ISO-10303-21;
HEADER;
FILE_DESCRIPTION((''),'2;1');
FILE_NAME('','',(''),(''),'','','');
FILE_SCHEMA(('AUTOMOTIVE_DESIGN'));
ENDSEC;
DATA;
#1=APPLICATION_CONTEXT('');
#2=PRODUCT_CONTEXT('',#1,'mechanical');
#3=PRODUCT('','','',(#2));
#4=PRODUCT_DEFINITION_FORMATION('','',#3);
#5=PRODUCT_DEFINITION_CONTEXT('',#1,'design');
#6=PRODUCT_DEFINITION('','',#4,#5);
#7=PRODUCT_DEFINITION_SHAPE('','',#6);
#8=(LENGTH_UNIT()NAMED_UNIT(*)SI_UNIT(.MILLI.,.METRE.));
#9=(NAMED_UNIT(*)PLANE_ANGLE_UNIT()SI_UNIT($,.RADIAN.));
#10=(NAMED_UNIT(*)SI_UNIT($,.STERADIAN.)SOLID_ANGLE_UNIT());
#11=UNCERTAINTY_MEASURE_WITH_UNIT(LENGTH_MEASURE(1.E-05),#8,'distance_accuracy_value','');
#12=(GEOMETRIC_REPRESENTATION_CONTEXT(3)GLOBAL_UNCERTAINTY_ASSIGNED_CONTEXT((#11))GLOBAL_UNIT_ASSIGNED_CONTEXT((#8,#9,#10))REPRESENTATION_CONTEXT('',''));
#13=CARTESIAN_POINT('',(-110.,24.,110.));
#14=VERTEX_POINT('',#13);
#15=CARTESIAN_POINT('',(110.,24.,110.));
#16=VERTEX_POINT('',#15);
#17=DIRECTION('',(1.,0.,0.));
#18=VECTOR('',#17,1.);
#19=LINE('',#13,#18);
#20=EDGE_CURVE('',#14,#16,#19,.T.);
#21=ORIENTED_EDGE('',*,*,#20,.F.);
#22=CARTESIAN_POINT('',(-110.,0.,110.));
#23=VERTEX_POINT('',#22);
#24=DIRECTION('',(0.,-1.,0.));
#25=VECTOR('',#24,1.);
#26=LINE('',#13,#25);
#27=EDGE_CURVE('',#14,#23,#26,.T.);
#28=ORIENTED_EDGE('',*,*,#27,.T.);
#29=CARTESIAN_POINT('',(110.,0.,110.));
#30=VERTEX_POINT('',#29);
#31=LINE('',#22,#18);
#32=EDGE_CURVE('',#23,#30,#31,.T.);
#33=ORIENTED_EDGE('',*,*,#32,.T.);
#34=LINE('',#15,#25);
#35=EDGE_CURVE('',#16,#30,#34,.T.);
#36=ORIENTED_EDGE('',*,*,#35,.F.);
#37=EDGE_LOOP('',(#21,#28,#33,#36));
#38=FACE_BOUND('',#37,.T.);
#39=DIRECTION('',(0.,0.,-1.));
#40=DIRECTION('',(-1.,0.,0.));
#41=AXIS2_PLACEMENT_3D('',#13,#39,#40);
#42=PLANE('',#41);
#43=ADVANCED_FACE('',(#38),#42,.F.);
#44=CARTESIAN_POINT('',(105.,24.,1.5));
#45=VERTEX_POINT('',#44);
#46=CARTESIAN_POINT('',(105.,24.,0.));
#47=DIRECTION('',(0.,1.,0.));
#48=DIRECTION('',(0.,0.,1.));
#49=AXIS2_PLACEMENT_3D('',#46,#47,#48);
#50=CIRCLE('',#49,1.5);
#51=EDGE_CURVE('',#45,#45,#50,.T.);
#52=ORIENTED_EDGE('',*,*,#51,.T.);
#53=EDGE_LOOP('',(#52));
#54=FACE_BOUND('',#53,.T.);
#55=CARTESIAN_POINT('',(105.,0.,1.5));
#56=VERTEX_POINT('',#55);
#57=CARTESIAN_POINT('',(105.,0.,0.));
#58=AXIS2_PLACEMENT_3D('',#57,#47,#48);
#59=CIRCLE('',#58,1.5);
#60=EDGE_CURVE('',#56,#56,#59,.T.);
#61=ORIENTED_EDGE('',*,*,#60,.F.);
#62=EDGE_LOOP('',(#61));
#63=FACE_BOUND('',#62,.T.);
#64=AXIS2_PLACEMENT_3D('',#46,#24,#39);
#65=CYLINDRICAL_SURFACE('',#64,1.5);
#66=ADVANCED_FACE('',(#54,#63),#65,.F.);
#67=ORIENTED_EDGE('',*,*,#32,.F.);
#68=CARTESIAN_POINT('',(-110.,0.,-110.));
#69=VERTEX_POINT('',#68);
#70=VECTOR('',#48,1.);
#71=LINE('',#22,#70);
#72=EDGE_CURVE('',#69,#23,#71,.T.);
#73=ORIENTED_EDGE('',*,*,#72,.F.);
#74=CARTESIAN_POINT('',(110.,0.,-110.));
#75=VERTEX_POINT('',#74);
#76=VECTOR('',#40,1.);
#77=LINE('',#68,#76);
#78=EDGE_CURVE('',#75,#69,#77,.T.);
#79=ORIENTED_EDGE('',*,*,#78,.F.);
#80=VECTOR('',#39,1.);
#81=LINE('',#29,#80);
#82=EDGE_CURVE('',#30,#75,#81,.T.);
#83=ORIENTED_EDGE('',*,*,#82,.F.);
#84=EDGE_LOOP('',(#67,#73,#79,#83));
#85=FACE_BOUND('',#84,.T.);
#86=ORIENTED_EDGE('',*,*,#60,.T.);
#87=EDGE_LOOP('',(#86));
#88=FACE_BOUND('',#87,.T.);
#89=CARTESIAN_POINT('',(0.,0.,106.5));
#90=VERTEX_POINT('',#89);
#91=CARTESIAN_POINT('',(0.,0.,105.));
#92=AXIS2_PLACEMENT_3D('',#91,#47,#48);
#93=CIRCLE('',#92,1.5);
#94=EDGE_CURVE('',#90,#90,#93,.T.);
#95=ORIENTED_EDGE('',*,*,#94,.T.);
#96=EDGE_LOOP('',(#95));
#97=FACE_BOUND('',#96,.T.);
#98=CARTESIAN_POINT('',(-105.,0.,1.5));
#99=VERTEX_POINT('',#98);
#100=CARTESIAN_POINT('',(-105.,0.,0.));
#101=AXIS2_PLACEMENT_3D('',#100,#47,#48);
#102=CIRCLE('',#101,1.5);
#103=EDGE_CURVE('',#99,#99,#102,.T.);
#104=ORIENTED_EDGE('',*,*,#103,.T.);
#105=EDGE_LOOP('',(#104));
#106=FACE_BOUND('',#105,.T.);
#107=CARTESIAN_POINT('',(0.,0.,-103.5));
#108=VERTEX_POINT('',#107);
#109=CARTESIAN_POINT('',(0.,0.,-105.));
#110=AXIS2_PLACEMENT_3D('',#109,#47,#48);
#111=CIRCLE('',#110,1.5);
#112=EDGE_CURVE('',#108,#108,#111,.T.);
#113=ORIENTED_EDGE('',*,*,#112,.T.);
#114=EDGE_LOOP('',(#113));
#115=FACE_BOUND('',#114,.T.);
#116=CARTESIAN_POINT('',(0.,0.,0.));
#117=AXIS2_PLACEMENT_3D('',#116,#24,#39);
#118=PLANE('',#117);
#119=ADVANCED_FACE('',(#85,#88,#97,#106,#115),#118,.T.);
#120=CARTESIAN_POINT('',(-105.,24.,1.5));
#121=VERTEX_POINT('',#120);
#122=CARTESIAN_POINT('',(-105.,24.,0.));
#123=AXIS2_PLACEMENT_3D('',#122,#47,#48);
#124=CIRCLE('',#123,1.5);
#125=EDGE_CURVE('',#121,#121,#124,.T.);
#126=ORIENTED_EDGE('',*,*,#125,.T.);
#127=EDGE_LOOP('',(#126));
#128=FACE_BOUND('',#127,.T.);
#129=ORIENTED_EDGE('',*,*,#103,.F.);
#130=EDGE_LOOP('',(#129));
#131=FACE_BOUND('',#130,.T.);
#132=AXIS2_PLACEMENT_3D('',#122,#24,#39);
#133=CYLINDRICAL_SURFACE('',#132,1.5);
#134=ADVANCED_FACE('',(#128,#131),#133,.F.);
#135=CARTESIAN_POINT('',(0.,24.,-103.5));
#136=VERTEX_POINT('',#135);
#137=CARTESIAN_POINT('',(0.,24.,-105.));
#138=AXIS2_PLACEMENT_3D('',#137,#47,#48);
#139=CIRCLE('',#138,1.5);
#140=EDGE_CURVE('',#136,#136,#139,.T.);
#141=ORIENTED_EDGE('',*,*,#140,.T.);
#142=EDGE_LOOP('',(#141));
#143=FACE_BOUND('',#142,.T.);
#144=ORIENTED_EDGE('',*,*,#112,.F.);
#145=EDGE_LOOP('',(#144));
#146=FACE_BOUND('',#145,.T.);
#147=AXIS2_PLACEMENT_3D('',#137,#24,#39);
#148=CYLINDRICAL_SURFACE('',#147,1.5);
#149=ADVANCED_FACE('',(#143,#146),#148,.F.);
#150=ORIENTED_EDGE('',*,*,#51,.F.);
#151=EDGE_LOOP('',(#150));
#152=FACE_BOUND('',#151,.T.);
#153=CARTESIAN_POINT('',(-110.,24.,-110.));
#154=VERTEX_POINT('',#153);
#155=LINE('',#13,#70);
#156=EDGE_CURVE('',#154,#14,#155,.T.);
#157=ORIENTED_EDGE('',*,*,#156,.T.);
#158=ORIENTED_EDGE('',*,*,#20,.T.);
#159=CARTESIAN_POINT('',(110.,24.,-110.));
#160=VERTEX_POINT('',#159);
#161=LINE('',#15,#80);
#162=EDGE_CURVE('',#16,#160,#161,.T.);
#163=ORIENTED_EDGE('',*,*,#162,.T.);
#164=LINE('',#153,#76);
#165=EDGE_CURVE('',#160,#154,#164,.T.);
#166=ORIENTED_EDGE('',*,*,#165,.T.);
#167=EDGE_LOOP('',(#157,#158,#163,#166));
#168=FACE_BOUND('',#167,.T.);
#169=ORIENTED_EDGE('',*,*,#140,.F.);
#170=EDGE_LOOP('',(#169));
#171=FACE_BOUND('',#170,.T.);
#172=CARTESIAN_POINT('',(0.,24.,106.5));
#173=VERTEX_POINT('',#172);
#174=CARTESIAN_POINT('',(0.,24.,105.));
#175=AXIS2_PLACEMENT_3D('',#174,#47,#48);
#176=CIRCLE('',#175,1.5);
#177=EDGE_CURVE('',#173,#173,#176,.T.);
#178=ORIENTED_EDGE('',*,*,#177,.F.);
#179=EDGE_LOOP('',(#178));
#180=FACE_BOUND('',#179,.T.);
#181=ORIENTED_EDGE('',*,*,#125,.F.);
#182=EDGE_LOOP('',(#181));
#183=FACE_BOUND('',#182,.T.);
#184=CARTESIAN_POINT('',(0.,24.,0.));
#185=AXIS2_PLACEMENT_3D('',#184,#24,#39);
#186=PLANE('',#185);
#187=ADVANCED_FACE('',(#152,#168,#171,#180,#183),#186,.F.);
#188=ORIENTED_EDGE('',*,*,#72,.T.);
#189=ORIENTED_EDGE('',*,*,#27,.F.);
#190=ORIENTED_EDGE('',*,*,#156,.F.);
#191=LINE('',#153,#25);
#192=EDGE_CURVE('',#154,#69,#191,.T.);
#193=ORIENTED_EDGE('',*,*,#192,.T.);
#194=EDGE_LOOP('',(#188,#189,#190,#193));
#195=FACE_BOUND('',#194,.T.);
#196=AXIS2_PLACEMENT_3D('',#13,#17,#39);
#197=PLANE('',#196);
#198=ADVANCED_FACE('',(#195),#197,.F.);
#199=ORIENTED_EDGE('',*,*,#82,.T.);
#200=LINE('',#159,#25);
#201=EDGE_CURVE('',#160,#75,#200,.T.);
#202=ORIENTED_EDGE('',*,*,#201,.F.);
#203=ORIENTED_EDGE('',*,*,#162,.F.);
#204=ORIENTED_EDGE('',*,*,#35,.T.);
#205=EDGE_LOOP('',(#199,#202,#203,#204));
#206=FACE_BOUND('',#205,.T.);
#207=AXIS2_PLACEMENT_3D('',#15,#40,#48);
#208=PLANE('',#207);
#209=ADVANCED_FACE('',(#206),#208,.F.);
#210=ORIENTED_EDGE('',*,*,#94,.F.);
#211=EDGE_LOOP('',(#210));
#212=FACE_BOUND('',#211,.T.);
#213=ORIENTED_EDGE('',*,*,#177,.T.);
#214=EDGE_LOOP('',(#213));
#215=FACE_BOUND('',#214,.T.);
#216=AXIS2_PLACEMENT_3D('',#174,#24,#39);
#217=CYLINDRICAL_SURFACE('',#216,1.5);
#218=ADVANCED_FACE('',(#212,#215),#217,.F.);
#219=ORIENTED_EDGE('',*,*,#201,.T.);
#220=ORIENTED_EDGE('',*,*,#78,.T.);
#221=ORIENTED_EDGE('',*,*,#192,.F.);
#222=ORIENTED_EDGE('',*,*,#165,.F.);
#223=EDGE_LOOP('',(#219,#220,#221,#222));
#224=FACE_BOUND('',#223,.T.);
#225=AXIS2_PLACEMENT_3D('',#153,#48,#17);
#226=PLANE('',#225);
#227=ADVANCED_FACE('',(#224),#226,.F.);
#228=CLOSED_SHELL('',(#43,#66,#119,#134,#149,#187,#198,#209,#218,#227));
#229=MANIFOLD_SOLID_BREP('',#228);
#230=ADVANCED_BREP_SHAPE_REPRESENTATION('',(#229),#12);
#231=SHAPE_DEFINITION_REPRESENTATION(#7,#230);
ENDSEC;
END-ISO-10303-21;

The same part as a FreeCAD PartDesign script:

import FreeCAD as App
import Part
import Sketcher

V = App.Vector
Q = App.Units.Quantity

doc = App.newDocument("Part")
body = doc.addObject("PartDesign::Body", "Body")

sketch1 = body.newObject("Sketcher::SketchObject", "Sketch")
sketch1.AttachmentSupport = (doc.getObject("XZ_Plane"), [""])
sketch1.MapMode = "FlatFace"
sketch1.addGeometry([
    Part.LineSegment(V(-110, -110, 0), V(-110, 110, 0)),
    Part.LineSegment(V(-110, 110, 0), V(110, 110, 0)),
    Part.LineSegment(V(110, 110, 0), V(110, -110, 0)),
    Part.LineSegment(V(110, -110, 0), V(-110, -110, 0)),
    Part.Circle(V(0, 105, 0), V(0, 0, 1), 1.5),
    Part.Circle(V(-105, 0, 0), V(0, 0, 1), 1.5),
    Part.Circle(V(105, 0, 0), V(0, 0, 1), 1.5),
    Part.Circle(V(0, -105, 0), V(0, 0, 1), 1.5),
], False)
sketch1.addConstraint([
    Sketcher.Constraint("Coincident", 0, 2, 1, 1),
    Sketcher.Constraint("Coincident", 1, 2, 2, 1),
    Sketcher.Constraint("Coincident", 2, 2, 3, 1),
    Sketcher.Constraint("Coincident", 3, 2, 0, 1),
    Sketcher.Constraint("Vertical", 0),
    Sketcher.Constraint("Horizontal", 1),
    Sketcher.Constraint("Vertical", 2),
    Sketcher.Constraint("Horizontal", 3),
    Sketcher.Constraint("Equal", 4, 5),
    Sketcher.Constraint("Equal", 5, 6),
    Sketcher.Constraint("Equal", 6, 7),
    Sketcher.Constraint("Symmetric", 5, 3, 6, 3, -1, 1),
    Sketcher.Constraint("Symmetric", 4, 3, 7, 3, -1, 1),
    Sketcher.Constraint("Symmetric", 0, 2, 2, 2, -1, 1),
    Sketcher.Constraint("PointOnObject", 4, 3, -2),
    Sketcher.Constraint("PointOnObject", 5, 3, -1),
    Sketcher.Constraint("Equal", 3, 0),
    Sketcher.Constraint("Diameter", 4, Q("3 mm")),
    Sketcher.Constraint("DistanceX", 1, 1, 1, 2, Q("220 mm")),
    Sketcher.Constraint("DistanceY", -1, 1, 4, 3, Q("105 mm")),
    Sketcher.Constraint("DistanceX", 5, 3, -1, 1, Q("105 mm")),
])
pad1 = body.newObject("PartDesign::Pad", "Pad")
pad1.Profile = sketch1
pad1.Length = 24
pad1.Reversed = True

doc.recompute()
